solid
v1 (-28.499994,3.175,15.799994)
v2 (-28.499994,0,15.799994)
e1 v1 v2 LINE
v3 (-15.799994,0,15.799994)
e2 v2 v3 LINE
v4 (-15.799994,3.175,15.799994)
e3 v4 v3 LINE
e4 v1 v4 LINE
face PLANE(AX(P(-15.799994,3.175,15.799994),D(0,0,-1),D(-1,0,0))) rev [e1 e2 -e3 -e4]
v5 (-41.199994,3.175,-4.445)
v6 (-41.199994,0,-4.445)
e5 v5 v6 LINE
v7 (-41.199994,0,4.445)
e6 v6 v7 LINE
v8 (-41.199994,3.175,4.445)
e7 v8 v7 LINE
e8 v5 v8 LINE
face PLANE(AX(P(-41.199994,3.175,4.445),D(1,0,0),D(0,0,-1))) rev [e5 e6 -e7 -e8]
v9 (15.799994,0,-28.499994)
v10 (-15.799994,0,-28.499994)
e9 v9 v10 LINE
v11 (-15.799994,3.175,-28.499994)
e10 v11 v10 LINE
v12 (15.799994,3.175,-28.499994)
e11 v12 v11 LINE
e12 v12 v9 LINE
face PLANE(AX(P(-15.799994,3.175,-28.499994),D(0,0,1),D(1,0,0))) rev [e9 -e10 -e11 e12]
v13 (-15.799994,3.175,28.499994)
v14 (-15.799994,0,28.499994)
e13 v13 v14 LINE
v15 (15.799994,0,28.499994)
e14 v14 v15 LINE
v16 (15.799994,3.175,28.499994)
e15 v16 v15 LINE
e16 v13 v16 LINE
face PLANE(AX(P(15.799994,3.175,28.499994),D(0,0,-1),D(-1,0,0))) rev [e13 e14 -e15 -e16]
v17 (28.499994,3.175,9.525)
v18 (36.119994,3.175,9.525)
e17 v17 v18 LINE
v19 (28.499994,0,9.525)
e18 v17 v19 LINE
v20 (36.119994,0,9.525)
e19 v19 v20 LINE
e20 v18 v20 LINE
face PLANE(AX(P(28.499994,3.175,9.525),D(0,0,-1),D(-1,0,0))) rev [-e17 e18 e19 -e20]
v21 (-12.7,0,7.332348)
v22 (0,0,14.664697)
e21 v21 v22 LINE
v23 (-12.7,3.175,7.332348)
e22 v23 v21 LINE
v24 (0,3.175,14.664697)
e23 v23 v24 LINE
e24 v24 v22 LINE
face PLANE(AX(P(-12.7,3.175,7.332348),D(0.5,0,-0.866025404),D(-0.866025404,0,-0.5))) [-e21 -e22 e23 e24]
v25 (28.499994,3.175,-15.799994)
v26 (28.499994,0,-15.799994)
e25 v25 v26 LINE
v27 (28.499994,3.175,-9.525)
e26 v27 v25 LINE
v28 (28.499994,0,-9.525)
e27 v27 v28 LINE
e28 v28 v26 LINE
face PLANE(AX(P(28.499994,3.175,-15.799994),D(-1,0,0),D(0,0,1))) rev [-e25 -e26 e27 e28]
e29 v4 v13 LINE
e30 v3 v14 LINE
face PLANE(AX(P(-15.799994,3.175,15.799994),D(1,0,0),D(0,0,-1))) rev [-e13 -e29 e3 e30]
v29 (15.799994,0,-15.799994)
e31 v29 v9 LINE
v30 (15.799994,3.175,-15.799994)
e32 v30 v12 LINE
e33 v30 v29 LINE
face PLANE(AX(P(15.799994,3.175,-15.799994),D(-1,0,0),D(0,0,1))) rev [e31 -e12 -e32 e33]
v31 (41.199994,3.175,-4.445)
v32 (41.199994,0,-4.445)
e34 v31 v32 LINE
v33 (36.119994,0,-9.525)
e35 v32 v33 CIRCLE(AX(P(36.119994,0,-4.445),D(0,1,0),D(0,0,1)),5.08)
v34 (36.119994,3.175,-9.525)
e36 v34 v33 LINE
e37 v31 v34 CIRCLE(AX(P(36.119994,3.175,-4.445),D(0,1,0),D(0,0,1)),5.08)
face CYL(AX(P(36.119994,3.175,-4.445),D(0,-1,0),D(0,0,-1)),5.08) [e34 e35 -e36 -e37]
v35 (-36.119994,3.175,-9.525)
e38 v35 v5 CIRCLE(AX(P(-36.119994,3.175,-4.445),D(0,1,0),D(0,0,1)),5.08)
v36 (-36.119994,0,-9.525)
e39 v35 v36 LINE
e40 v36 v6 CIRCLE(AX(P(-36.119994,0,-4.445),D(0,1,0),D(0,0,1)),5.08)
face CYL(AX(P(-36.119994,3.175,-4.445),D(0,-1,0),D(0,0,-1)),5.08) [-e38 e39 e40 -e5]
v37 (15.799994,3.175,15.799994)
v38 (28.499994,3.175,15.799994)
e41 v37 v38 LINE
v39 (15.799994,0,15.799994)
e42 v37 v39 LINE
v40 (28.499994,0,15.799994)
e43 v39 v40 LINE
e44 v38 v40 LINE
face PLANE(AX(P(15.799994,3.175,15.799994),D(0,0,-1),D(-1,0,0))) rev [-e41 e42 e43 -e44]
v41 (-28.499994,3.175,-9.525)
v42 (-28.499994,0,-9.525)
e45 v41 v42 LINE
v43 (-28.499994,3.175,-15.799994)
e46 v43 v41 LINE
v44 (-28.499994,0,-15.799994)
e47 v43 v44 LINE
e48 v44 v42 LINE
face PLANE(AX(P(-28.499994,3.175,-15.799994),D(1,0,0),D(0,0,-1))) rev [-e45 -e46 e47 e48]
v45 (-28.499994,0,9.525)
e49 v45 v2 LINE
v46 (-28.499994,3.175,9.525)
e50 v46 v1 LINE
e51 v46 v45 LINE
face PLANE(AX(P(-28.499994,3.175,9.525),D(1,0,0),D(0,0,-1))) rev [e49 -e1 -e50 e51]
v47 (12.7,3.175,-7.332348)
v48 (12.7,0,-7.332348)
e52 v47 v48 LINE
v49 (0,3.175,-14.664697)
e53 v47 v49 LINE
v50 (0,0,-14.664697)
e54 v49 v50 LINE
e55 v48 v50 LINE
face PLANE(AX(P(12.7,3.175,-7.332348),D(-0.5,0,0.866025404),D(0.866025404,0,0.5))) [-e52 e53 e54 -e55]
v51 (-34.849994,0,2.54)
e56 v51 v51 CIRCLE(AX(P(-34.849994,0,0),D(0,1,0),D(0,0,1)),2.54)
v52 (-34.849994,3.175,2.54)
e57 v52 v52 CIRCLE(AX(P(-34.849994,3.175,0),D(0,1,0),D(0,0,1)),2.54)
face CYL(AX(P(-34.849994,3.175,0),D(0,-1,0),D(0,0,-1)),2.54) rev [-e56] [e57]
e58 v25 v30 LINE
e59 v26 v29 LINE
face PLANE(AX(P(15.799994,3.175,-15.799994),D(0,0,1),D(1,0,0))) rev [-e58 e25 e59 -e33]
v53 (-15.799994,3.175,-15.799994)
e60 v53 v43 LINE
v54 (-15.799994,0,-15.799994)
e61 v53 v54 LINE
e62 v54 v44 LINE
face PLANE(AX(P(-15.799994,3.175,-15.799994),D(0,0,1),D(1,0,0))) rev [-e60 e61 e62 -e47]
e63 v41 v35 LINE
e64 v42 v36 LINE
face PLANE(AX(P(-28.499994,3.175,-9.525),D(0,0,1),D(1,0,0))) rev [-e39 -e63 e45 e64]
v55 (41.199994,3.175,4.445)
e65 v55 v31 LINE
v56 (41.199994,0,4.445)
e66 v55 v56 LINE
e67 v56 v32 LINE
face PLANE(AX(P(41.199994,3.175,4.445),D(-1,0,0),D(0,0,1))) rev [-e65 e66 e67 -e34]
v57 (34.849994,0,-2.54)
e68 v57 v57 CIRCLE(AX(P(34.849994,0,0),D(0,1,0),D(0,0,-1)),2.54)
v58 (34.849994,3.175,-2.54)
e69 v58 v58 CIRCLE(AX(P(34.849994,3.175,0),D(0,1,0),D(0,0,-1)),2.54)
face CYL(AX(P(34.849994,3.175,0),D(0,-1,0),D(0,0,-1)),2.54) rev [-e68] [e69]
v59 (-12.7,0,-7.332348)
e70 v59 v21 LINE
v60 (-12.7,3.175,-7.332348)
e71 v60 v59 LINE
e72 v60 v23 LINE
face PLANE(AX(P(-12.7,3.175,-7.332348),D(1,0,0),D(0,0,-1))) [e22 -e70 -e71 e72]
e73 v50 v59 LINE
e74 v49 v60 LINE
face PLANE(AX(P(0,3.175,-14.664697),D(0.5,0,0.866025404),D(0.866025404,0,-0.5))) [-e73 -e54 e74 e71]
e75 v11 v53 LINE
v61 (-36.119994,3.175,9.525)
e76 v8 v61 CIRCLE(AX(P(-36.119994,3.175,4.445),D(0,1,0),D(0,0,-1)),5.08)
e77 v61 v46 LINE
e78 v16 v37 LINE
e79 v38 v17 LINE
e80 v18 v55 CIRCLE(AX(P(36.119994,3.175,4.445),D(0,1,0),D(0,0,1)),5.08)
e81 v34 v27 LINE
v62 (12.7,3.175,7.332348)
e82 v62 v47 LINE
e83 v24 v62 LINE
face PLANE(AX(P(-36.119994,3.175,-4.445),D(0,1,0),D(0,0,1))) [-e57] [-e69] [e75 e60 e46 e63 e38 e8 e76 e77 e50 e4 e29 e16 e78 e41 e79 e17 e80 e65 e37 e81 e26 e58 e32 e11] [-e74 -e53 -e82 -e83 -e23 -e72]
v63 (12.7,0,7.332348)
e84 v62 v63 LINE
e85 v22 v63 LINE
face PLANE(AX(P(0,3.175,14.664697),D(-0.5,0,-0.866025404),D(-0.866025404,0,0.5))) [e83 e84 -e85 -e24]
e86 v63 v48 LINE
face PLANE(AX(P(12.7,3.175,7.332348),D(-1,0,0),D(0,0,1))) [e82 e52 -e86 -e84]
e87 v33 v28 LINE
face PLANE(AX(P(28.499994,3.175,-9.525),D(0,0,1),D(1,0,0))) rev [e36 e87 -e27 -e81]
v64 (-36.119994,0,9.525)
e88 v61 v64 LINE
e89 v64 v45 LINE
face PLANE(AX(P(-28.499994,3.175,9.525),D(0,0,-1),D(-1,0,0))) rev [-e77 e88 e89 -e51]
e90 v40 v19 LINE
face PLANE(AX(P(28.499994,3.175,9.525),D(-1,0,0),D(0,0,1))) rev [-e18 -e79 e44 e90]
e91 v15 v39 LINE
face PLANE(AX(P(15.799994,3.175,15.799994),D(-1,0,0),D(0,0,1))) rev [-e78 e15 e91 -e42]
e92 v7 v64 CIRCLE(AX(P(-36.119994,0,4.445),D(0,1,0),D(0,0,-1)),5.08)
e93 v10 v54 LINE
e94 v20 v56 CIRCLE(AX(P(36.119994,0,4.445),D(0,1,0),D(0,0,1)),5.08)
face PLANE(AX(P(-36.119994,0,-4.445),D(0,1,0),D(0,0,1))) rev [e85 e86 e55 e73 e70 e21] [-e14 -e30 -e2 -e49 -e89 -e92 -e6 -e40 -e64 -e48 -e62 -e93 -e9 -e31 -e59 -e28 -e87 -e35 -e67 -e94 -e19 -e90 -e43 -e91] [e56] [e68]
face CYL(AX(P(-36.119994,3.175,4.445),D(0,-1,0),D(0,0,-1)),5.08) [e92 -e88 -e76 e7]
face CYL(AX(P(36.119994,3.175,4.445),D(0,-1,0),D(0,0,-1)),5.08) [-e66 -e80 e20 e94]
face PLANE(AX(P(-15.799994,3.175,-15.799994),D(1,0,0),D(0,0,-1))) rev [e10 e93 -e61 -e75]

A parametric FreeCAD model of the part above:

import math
import FreeCAD as App
import Part
import Sketcher
from FreeCAD import Vector
Q = App.Units.Quantity

doc = App.newDocument("Part")
body = doc.addObject("PartDesign::Body", "Body")

sketch1 = doc.addObject("Sketcher::SketchObject", "Sketch")
body.addObject(sketch1)
sketch1.AttachmentSupport = (doc.XZ_Plane, [""])
sketch1.MapMode = "FlatFace"
sketch1.addGeometry([
    Part.LineSegment(Vector(-28.5, -15.8, 0), Vector(-28.5, -9.5, 0)),
    Part.LineSegment(Vector(-28.5, -9.5, 0), Vector(-36.1, -9.5, 0)),
    Part.ArcOfCircle(Part.Circle(Vector(-36.1, -4.4, 0), Vector(0, 0, 1), 5.1), math.radians(-180), math.radians(-90)),
    Part.LineSegment(Vector(-41.2, -4.4, 0), Vector(-41.2, 4.4, 0)),
    Part.ArcOfCircle(Part.Circle(Vector(-36.1, 4.4, 0), Vector(0, 0, 1), 5.1), math.radians(90), math.radians(180)),
    Part.LineSegment(Vector(-36.1, 9.5, 0), Vector(-28.5, 9.5, 0)),
    Part.LineSegment(Vector(-28.5, 9.5, 0), Vector(-28.5, 15.8, 0)),
    Part.LineSegment(Vector(-28.5, 15.8, 0), Vector(-15.8, 15.8, 0)),
    Part.LineSegment(Vector(-15.8, 15.8, 0), Vector(-15.8, 28.5, 0)),
    Part.LineSegment(Vector(-15.8, 28.5, 0), Vector(15.8, 28.5, 0)),
    Part.LineSegment(Vector(15.8, 28.5, 0), Vector(15.8, 15.8, 0)),
    Part.LineSegment(Vector(15.8, 15.8, 0), Vector(28.5, 15.8, 0)),
    Part.LineSegment(Vector(28.5, 15.8, 0), Vector(28.5, 9.5, 0)),
    Part.LineSegment(Vector(28.5, 9.5, 0), Vector(36.1, 9.5, 0)),
    Part.ArcOfCircle(Part.Circle(Vector(36.1, 4.4, 0), Vector(0, 0, 1), 5.1), math.radians(0), math.radians(90)),
    Part.LineSegment(Vector(41.2, 4.4, 0), Vector(41.2, -4.4, 0)),
    Part.ArcOfCircle(Part.Circle(Vector(36.1, -4.4, 0), Vector(0, 0, 1), 5.1), math.radians(-90), math.radians(0)),
    Part.LineSegment(Vector(36.1, -9.5, 0), Vector(28.5, -9.5, 0)),
    Part.LineSegment(Vector(28.5, -9.5, 0), Vector(28.5, -15.8, 0)),
    Part.LineSegment(Vector(28.5, -15.8, 0), Vector(15.8, -15.8, 0)),
    Part.LineSegment(Vector(15.8, -15.8, 0), Vector(15.8, -28.5, 0)),
    Part.LineSegment(Vector(15.8, -28.5, 0), Vector(-15.8, -28.5, 0)),
    Part.LineSegment(Vector(-15.8, -28.5, 0), Vector(-15.8, -15.8, 0)),
    Part.LineSegment(Vector(-15.8, -15.8, 0), Vector(-28.5, -15.8, 0)),
    Part.Circle(Vector(-34.8, 0, 0), Vector(0, 0, 1), 2.5),
    Part.LineSegment(Vector(-12.7, -7.3, 0), Vector(0, -14.7, 0)),
    Part.LineSegment(Vector(0, -14.7, 0), Vector(12.7, -7.3, 0)),
    Part.LineSegment(Vector(12.7, -7.3, 0), Vector(12.7, 7.3, 0)),
    Part.LineSegment(Vector(12.7, 7.3, 0), Vector(0, 14.7, 0)),
    Part.LineSegment(Vector(0, 14.7, 0), Vector(-12.7, 7.3, 0)),
    Part.LineSegment(Vector(-12.7, 7.3, 0), Vector(-12.7, -7.3, 0)),
    Part.Circle(Vector(34.8, 0, 0), Vector(0, 0, 1), 2.5),
], False)
sketch1.addConstraint([
    Sketcher.Constraint("Coincident", 0, 2, 1, 1),
    Sketcher.Constraint("Tangent", 1, 2, 2, 2),
    Sketcher.Constraint("Tangent", 2, 1, 3, 1),
    Sketcher.Constraint("Tangent", 3, 2, 4, 2),
    Sketcher.Constraint("Tangent", 4, 1, 5, 1),
    Sketcher.Constraint("Coincident", 5, 2, 6, 1),
    Sketcher.Constraint("Coincident", 6, 2, 7, 1),
    Sketcher.Constraint("Coincident", 7, 2, 8, 1),
    Sketcher.Constraint("Coincident", 8, 2, 9, 1),
    Sketcher.Constraint("Coincident", 9, 2, 10, 1),
    Sketcher.Constraint("Coincident", 10, 2, 11, 1),
    Sketcher.Constraint("Coincident", 11, 2, 12, 1),
    Sketcher.Constraint("Coincident", 12, 2, 13, 1),
    Sketcher.Constraint("Tangent", 13, 2, 14, 2),
    Sketcher.Constraint("Tangent", 14, 1, 15, 1),
    Sketcher.Constraint("Tangent", 15, 2, 16, 2),
    Sketcher.Constraint("Tangent", 16, 1, 17, 1),
    Sketcher.Constraint("Coincident", 17, 2, 18, 1),
    Sketcher.Constraint("Coincident", 18, 2, 19, 1),
    Sketcher.Constraint("Coincident", 19, 2, 20, 1),
    Sketcher.Constraint("Coincident", 20, 2, 21, 1),
    Sketcher.Constraint("Coincident", 21, 2, 22, 1),
    Sketcher.Constraint("Coincident", 22, 2, 23, 1),
    Sketcher.Constraint("Coincident", 23, 2, 0, 1),
    Sketcher.Constraint("Coincident", 25, 2, 26, 1),
    Sketcher.Constraint("Coincident", 26, 2, 27, 1),
    Sketcher.Constraint("Coincident", 27, 2, 28, 1),
    Sketcher.Constraint("Coincident", 28, 2, 29, 1),
    Sketcher.Constraint("Coincident", 29, 2, 30, 1),
    Sketcher.Constraint("Coincident", 30, 2, 25, 1),
    Sketcher.Constraint("Vertical", 0),
    Sketcher.Constraint("Horizontal", 1),
    Sketcher.Constraint("Vertical", 3),
    Sketcher.Constraint("Horizontal", 5),
    Sketcher.Constraint("Vertical", 6),
    Sketcher.Constraint("Horizontal", 7),
    Sketcher.Constraint("Vertical", 8),
    Sketcher.Constraint("Horizontal", 9),
    Sketcher.Constraint("Vertical", 10),
    Sketcher.Constraint("Horizontal", 11),
    Sketcher.Constraint("Vertical", 12),
    Sketcher.Constraint("Horizontal", 13),
    Sketcher.Constraint("Vertical", 15),
    Sketcher.Constraint("Horizontal", 17),
    Sketcher.Constraint("Vertical", 18),
    Sketcher.Constraint("Horizontal", 19),
    Sketcher.Constraint("Vertical", 20),
    Sketcher.Constraint("Horizontal", 21),
    Sketcher.Constraint("Vertical", 22),
    Sketcher.Constraint("Horizontal", 23),
    Sketcher.Constraint("Vertical", 27),
    Sketcher.Constraint("Vertical", 30),
    Sketcher.Constraint("Equal", 2, 4),
    Sketcher.Constraint("Equal", 4, 14),
    Sketcher.Constraint("Equal", 14, 16),
    Sketcher.Constraint("Equal", 24, 31),
    Sketcher.Constraint("Symmetric", 2, 3, 14, 3, -1, 1),
    Sketcher.Constraint("Symmetric", 24, 3, 31, 3, -1, 1),
    Sketcher.Constraint("Symmetric", 5, 2, 17, 2, -1, 1),
    Sketcher.Constraint("Symmetric", 7, 2, 19, 2, -1, 1),
    Sketcher.Constraint("Symmetric", 9, 2, 21, 2, -1, 1),
    Sketcher.Constraint("Symmetric", 11, 2, 23, 2, -1, 1),
    Sketcher.Constraint("Symmetric", 25, 2, 28, 2, -1, 1),
    Sketcher.Constraint("Symmetric", 26, 2, 29, 2, -1, 1),
    Sketcher.Constraint("Symmetric", 7, 2, 10, 2, -2),
    Sketcher.Constraint("Symmetric", 5, 2, 12, 2, -2),
    Sketcher.Constraint("PointOnObject", 24, 3, -1),
    Sketcher.Constraint("PointOnObject", 25, 2, -2),
    Sketcher.Constraint("Parallel", 25, 28),
    Sketcher.Constraint("Horizontal", 27, 2, 29, 2),
    Sketcher.Constraint("Equal", 23, 8),
    Sketcher.Constraint("Diameter", 24, Q("0.2 in")),
    Sketcher.Constraint("Radius", 2, Q("0.2 in")),
    Sketcher.Constraint("DistanceX", 1, 2, 1, 1, Q("0.3 in")),
    Sketcher.Constraint("DistanceX", 7, 1, 7, 2, Q("0.5 in")),
    Sketcher.Constraint("Angle", 25, Q("-30 deg")),
    Sketcher.Constraint("DistanceY", 3, 1, 3, 2, Q("0.35 in")),
    Sketcher.Constraint("DistanceX", -1, 1, 26, 2, Q("0.5 in")),
    Sketcher.Constraint("DistanceX", 2, 3, 24, 3, Q("0.05 in")),
    Sketcher.Constraint("DistanceX", 9, 1, 9, 2, Q("31.599988 mm")),
    Sketcher.Constraint("DistanceY", 0, 1, 0, 2, Q("6.274994 mm")),
    Sketcher.Constraint("DistanceY", 27, 1, 27, 2, Q("14.664697 mm")),
])
pad1 = doc.addObject("PartDesign::Pad", "Pad")
body.addObject(pad1)
pad1.Profile = sketch1
pad1.Length = Q("0.125 in")
pad1.Reversed = True

doc.recompute()
